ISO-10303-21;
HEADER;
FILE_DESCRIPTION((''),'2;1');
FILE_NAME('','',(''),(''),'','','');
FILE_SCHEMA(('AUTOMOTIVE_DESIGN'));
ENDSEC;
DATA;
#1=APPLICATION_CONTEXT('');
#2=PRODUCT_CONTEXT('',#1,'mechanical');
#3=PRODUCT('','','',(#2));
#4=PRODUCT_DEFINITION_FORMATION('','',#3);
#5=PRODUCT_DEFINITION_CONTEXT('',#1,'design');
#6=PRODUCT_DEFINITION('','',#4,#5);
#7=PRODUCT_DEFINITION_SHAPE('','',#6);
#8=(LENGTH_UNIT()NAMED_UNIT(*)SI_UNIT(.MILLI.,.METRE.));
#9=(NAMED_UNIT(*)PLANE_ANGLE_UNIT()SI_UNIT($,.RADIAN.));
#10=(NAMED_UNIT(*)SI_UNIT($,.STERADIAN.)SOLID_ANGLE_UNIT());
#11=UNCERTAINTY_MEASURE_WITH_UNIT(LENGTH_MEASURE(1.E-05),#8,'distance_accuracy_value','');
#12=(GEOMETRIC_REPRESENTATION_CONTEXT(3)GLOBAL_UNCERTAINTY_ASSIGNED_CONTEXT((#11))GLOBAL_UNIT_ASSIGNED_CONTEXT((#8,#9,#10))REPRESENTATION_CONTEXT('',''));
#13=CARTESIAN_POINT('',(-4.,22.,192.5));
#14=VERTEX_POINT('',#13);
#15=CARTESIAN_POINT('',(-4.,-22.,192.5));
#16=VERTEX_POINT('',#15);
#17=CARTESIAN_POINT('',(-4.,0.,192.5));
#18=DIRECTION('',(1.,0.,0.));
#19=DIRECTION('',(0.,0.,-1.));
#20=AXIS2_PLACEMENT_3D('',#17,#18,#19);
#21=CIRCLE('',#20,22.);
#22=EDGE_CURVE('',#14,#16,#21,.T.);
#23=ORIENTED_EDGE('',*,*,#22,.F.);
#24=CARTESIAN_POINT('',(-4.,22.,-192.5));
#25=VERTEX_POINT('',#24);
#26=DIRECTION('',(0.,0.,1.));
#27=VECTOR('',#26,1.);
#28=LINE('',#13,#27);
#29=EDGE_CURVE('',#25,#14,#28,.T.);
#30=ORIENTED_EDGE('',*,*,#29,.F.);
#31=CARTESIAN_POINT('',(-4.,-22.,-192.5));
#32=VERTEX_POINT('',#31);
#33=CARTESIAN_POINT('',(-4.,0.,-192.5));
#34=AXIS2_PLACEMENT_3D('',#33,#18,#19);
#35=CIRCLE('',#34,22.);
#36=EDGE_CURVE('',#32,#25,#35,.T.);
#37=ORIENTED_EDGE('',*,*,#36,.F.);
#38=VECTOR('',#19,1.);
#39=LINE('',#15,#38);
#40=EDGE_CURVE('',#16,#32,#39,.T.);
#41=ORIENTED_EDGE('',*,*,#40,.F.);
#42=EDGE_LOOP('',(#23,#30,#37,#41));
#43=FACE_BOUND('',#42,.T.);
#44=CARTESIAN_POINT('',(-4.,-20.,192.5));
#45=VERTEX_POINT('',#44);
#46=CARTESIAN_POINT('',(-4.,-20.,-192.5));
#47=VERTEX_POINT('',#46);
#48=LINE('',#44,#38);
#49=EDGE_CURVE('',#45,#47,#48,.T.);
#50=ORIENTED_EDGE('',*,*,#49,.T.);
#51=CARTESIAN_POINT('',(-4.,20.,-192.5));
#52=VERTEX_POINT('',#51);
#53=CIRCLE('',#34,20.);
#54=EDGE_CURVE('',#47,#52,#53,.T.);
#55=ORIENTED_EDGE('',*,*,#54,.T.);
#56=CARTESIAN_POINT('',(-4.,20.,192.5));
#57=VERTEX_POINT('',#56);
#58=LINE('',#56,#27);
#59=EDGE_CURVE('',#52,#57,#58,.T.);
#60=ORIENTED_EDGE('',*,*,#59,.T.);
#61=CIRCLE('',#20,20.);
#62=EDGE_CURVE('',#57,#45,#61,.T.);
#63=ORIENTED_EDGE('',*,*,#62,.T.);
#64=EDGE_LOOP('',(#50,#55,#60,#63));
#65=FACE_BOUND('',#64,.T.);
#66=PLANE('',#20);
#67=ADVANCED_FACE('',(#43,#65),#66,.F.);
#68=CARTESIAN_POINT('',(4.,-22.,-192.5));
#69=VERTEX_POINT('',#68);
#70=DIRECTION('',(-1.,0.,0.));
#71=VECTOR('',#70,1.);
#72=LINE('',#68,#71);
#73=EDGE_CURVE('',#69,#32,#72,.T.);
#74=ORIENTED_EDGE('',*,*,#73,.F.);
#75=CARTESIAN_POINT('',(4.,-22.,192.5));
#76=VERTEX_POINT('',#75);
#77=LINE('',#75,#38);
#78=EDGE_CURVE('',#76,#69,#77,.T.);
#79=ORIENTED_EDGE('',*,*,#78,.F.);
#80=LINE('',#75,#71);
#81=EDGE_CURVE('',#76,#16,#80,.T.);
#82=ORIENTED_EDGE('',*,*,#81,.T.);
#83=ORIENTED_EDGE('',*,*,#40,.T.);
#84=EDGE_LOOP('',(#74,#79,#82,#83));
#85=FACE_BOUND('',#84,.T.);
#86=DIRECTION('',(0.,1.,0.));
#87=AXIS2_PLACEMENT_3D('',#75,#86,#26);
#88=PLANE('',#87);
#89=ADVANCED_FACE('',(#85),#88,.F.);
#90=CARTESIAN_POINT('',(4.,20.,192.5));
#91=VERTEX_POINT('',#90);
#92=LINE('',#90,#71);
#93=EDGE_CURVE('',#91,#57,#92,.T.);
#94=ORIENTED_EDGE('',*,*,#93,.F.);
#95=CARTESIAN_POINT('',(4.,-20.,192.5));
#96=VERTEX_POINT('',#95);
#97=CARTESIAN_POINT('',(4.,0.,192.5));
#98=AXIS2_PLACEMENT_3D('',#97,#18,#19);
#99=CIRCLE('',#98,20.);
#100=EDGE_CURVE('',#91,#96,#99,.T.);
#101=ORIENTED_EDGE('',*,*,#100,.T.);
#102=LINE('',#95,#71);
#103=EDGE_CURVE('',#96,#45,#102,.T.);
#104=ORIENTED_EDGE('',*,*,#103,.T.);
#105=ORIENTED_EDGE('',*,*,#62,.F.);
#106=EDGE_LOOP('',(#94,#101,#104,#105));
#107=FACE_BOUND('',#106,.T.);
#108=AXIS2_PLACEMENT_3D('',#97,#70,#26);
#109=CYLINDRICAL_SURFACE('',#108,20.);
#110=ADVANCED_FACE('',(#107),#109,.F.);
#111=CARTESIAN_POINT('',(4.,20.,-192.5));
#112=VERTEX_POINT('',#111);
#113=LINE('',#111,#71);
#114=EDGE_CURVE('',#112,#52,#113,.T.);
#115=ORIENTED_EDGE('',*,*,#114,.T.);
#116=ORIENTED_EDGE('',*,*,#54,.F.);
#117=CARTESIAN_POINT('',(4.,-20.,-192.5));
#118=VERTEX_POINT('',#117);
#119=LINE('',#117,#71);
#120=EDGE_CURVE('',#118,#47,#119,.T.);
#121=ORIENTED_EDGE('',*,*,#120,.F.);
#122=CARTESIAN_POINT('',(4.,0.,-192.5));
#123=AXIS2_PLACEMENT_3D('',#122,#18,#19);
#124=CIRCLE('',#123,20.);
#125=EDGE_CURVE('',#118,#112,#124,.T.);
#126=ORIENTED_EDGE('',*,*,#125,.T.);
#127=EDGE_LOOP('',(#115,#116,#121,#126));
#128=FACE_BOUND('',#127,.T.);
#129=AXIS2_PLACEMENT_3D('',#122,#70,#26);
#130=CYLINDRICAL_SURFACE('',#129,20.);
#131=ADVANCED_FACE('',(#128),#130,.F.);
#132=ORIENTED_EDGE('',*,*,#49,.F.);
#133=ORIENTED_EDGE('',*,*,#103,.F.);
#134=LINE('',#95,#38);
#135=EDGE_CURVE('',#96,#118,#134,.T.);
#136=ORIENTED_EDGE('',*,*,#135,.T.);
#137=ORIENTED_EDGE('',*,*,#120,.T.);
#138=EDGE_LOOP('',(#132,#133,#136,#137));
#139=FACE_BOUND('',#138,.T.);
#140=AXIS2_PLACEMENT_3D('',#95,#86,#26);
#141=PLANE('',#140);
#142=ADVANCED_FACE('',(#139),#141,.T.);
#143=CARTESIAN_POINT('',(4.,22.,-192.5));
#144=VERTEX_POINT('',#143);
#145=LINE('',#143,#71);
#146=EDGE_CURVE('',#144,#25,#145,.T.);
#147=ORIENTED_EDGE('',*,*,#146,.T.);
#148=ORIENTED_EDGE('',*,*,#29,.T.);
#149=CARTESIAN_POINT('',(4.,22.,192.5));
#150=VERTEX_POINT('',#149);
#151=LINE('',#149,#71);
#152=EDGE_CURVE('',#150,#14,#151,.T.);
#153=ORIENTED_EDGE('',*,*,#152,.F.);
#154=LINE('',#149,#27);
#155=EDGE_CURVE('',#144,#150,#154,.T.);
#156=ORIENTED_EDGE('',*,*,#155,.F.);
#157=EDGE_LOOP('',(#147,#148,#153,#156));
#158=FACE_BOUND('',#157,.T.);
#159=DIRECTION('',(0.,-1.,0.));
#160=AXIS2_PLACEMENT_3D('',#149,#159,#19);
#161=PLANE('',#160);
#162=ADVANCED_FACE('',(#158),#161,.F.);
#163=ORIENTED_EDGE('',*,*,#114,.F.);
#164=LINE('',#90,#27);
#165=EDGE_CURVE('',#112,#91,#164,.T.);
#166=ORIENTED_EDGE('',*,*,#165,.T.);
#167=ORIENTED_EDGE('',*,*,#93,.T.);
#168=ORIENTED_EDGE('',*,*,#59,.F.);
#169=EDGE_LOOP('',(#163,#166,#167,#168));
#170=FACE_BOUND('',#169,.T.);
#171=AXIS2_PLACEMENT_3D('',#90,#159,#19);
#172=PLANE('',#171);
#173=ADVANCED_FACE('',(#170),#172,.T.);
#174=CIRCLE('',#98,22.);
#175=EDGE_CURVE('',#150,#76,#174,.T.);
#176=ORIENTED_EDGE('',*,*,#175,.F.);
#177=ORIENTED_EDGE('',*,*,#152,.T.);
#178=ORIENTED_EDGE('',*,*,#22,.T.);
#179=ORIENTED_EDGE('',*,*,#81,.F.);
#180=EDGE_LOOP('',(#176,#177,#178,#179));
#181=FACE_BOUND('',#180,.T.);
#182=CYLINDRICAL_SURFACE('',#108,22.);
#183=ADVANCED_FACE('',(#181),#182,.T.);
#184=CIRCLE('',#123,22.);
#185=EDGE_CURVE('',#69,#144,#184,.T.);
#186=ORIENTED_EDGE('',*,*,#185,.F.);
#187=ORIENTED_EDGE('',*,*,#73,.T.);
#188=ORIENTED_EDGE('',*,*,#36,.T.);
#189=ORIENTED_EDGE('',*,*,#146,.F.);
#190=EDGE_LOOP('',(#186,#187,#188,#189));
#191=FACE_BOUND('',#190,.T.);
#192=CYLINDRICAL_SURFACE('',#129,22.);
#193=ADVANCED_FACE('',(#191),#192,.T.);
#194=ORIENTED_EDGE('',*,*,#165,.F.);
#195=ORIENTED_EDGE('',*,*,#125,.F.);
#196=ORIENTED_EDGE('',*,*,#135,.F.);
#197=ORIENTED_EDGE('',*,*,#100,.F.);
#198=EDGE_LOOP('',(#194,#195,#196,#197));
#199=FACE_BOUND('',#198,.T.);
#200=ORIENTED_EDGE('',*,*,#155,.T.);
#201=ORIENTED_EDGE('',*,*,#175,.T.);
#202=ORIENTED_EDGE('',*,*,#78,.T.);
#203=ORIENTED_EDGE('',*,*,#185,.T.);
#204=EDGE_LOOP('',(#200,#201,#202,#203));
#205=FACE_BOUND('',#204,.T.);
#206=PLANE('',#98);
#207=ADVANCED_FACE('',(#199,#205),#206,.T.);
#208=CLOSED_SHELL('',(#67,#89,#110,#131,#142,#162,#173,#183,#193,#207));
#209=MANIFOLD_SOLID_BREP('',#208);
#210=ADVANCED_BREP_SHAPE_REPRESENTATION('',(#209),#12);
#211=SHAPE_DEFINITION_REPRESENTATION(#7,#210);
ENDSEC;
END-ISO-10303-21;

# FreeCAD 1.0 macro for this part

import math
import FreeCAD as App
import Part
import Sketcher

V = App.Vector
Q = App.Units.Quantity

doc = App.newDocument("Part")
body = doc.addObject("PartDesign::Body", "Body")

# Sketch on YZ plane
sketch1 = body.newObject("Sketcher::SketchObject", "Sketch")
sketch1.AttachmentSupport = (doc.getObject("YZ_Plane"), [""])
sketch1.MapMode = "FlatFace"
sketch1.addGeometry(Part.LineSegment(V(-22, 192, 0), V(-22, -192, 0)), False)
sketch1.addGeometry(Part.ArcOfCircle(Part.Circle(V(0, -192, 0), V(0, 0, 1), 22), math.radians(180), math.radians(360)), False)
sketch1.addGeometry(Part.LineSegment(V(22, -192, 0), V(22, 192, 0)), False)
sketch1.addGeometry(Part.ArcOfCircle(Part.Circle(V(0, 192, 0), V(0, 0, 1), 22), math.radians(0), math.radians(180)), False)
sketch1.addGeometry(Part.LineSegment(V(-20, -192, 0), V(-20, 192, 0)), False)
sketch1.addGeometry(Part.ArcOfCircle(Part.Circle(V(0, 192, 0), V(0, 0, 1), 20), math.radians(0), math.radians(180)), False)
sketch1.addGeometry(Part.LineSegment(V(20, 192, 0), V(20, -192, 0)), False)
sketch1.addGeometry(Part.ArcOfCircle(Part.Circle(V(0, -192, 0), V(0, 0, 1), 20), math.radians(180), math.radians(360)), False)
sketch1.addConstraint(Sketcher.Constraint("Tangent", 0, 2, 1, 1))
sketch1.addConstraint(Sketcher.Constraint("Tangent", 1, 2, 2, 1))
sketch1.addConstraint(Sketcher.Constraint("Tangent", 2, 2, 3, 1))
sketch1.addConstraint(Sketcher.Constraint("Tangent", 3, 2, 0, 1))
sketch1.addConstraint(Sketcher.Constraint("Tangent", 4, 2, 5, 2))
sketch1.addConstraint(Sketcher.Constraint("Tangent", 5, 1, 6, 1))
sketch1.addConstraint(Sketcher.Constraint("Tangent", 6, 2, 7, 2))
sketch1.addConstraint(Sketcher.Constraint("Tangent", 7, 1, 4, 1))
sketch1.addConstraint(Sketcher.Constraint("Vertical", 0))
sketch1.addConstraint(Sketcher.Constraint("Vertical", 2))
sketch1.addConstraint(Sketcher.Constraint("Vertical", 4))
sketch1.addConstraint(Sketcher.Constraint("Vertical", 6))
sketch1.addConstraint(Sketcher.Constraint("Coincident", 5, 3, 3, 3))
sketch1.addConstraint(Sketcher.Constraint("Symmetric", 1, 3, 3, 3, -1, 1))
sketch1.addConstraint(Sketcher.Constraint("Horizontal", 7, 3, 0, 2))
sketch1.addConstraint(Sketcher.Constraint("Radius", 1, Q("22 mm")))
sketch1.addConstraint(Sketcher.Constraint("Radius", 5, Q("20 mm")))
sketch1.addConstraint(Sketcher.Constraint("DistanceY", 0, 2, 0, 1, Q("385 mm")))
pad1 = body.newObject("PartDesign::Pad", "Pad")
pad1.Profile = sketch1
pad1.Length = 8
pad1.Midplane = True

doc.recompute()
